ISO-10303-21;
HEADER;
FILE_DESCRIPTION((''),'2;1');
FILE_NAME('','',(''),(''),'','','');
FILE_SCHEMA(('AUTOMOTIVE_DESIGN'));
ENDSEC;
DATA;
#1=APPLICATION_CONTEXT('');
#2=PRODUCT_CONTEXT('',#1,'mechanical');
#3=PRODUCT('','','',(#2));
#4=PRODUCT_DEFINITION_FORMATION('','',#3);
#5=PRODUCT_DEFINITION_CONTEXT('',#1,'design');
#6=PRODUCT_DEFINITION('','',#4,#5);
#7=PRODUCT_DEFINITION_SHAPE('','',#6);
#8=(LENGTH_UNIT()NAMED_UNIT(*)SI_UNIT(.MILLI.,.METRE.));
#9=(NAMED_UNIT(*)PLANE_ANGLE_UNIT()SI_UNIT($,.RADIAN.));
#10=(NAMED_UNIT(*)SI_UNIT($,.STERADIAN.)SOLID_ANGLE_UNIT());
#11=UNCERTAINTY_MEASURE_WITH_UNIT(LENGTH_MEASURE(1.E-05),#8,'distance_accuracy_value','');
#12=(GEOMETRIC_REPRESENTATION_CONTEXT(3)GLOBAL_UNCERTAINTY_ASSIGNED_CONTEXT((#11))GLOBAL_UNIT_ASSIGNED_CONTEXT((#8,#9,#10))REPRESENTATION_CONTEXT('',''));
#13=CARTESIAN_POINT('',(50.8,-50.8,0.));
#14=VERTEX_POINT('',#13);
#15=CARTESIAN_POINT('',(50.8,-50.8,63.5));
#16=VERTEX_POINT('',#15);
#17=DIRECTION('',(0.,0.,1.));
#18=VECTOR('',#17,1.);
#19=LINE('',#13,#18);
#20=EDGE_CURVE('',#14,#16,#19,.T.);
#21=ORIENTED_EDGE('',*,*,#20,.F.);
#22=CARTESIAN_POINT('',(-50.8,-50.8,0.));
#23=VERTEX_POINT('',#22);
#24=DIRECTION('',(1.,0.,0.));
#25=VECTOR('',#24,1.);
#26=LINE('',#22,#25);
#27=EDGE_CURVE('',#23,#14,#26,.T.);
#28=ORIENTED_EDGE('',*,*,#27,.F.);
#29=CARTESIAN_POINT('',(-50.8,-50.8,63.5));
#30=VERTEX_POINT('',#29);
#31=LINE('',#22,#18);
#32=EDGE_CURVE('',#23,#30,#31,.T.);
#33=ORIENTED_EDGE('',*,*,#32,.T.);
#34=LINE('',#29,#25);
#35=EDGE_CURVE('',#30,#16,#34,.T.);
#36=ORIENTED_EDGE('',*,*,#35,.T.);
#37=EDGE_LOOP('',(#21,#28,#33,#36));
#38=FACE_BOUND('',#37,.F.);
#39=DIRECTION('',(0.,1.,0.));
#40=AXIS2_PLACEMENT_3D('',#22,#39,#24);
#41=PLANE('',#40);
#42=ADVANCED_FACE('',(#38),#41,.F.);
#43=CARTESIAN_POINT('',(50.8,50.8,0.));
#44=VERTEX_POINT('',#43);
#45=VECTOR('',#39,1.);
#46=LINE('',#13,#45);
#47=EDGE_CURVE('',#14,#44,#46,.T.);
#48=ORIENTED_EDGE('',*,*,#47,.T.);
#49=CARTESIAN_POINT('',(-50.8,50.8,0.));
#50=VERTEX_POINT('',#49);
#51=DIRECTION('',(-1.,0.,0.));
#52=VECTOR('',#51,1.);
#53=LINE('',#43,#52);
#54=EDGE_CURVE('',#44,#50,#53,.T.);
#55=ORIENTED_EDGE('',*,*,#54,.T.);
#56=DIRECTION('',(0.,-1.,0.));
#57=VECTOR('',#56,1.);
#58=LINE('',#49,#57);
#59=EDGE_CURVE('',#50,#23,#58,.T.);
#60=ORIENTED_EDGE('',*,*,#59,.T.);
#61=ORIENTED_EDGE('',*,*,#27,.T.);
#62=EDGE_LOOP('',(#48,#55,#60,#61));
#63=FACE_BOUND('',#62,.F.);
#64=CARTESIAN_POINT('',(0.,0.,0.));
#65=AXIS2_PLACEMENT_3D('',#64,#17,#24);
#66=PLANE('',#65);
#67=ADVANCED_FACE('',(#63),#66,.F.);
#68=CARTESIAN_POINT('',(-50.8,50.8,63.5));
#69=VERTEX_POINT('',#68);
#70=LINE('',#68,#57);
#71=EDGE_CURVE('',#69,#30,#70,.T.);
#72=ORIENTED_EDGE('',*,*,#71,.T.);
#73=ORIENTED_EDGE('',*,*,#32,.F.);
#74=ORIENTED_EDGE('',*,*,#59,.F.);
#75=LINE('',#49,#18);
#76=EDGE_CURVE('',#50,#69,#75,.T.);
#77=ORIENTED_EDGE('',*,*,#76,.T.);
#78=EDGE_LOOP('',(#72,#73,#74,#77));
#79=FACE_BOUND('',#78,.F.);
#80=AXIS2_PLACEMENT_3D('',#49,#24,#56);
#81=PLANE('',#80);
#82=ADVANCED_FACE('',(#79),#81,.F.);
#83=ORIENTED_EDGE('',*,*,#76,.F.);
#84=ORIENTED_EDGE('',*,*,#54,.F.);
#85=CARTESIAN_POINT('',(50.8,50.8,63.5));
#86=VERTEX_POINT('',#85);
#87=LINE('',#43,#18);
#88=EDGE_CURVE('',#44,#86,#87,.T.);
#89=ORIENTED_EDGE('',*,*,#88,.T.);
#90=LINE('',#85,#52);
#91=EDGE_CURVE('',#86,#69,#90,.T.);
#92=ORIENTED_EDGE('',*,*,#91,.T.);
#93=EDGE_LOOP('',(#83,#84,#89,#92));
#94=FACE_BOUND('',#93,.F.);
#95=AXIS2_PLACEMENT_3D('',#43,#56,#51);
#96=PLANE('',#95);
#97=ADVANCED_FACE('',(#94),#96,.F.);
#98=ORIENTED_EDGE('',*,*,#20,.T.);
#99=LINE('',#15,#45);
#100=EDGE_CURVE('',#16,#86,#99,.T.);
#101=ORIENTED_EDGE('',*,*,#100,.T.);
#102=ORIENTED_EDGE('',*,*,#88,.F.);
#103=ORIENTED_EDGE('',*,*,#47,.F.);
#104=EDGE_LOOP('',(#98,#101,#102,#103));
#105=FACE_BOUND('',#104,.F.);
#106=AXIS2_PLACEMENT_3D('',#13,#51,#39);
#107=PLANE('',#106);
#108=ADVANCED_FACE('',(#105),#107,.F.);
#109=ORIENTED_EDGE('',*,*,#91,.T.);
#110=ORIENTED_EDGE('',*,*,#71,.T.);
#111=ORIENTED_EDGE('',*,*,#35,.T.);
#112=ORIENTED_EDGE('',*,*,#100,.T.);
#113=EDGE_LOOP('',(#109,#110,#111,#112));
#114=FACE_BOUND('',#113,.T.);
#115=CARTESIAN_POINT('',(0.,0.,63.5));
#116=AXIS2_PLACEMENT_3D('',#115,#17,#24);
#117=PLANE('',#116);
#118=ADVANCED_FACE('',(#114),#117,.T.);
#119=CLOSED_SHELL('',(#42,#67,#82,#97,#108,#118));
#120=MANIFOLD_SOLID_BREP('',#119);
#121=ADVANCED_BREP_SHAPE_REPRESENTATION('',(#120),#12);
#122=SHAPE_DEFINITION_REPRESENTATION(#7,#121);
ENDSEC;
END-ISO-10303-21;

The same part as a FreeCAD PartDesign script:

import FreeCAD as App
import Part
import Sketcher

V = App.Vector
Q = App.Units.Quantity

doc = App.newDocument("Part")
body = doc.addObject("PartDesign::Body", "Body")

# Sketch on XY plane
sketch1 = body.newObject("Sketcher::SketchObject", "Sketch")
sketch1.AttachmentSupport = (doc.getObject("XY_Plane"), [""])
sketch1.MapMode = "FlatFace"
sketch1.addGeometry([
    Part.LineSegment(V(-51, 51, 0), V(-51, -51, 0)),
    Part.LineSegment(V(-51, -51, 0), V(51, -51, 0)),
    Part.LineSegment(V(51, -51, 0), V(51, 51, 0)),
    Part.LineSegment(V(51, 51, 0), V(-51, 51, 0)),
], False)
sketch1.addConstraint([
    Sketcher.Constraint("Coincident", 0, 2, 1, 1),
    Sketcher.Constraint("Coincident", 1, 2, 2, 1),
    Sketcher.Constraint("Coincident", 2, 2, 3, 1),
    Sketcher.Constraint("Coincident", 3, 2, 0, 1),
    Sketcher.Constraint("Vertical", 0),
    Sketcher.Constraint("Horizontal", 1),
    Sketcher.Constraint("Vertical", 2),
    Sketcher.Constraint("Horizontal", 3),
    Sketcher.Constraint("Symmetric", 0, 2, 2, 2, -1, 1),
    Sketcher.Constraint("Equal", 3, 0),
    Sketcher.Constraint("DistanceX", 1, 1, 1, 2, Q("4 in")),
])
pad1 = body.newObject("PartDesign::Pad", "Pad")
pad1.Profile = sketch1
pad1.Length = Q("2.5 in")

doc.recompute()
